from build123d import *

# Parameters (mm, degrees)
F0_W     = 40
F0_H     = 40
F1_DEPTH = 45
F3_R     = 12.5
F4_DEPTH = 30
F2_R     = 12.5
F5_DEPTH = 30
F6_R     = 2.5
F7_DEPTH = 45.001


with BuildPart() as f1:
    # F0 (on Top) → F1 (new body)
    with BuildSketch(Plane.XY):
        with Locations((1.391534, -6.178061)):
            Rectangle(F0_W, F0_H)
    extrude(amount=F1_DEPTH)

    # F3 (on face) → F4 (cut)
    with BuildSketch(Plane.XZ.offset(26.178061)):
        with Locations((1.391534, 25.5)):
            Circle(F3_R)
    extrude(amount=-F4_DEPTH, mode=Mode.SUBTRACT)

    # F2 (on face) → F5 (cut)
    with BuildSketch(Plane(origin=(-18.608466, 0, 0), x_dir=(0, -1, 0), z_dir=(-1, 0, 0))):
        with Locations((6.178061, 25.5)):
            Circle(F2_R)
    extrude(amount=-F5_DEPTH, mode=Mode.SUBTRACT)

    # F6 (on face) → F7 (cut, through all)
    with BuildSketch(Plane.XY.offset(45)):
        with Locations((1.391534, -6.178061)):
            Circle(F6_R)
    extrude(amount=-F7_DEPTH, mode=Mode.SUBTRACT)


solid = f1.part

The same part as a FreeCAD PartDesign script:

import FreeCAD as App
import Part
import Sketcher
from FreeCAD import Vector

doc = App.newDocument("Part")
body = doc.addObject("PartDesign::Body", "Body")

sketch1 = doc.addObject("Sketcher::SketchObject", "Sketch")
body.addObject(sketch1)
sketch1.AttachmentSupport = (doc.XY_Plane, [""])
sketch1.MapMode = "FlatFace"
sketch1.addGeometry([
    Part.LineSegment(Vector(-19, 14, 0), Vector(-19, -26, 0)),
    Part.LineSegment(Vector(-19, -26, 0), Vector(21, -26, 0)),
    Part.LineSegment(Vector(21, -26, 0), Vector(21, 14, 0)),
    Part.LineSegment(Vector(21, 14, 0), Vector(-19, 14, 0)),
], False)
sketch1.addConstraint([
    Sketcher.Constraint("Coincident", 0, 2, 1, 1),
    Sketcher.Constraint("Coincident", 1, 2, 2, 1),
    Sketcher.Constraint("Coincident", 2, 2, 3, 1),
    Sketcher.Constraint("Coincident", 3, 2, 0, 1),
    Sketcher.Constraint("Vertical", 0),
    Sketcher.Constraint("Horizontal", 1),
    Sketcher.Constraint("Vertical", 2),
    Sketcher.Constraint("Horizontal", 3),
    Sketcher.Constraint("Equal", 3, 0),
    Sketcher.Constraint("DistanceX", 1, 1, 1, 2, 40.0),
    Sketcher.Constraint("DistanceY", 0, 2, -1, 1, 26.178061),
    Sketcher.Constraint("DistanceX", 0, 2, -1, 1, 18.608466),
])
pad1 = doc.addObject("PartDesign::Pad", "Pad")
body.addObject(pad1)
pad1.Profile = sketch1
pad1.Length = 45

sketch2 = doc.addObject("Sketcher::SketchObject", "Sketch001")
body.addObject(sketch2)
sketch2.AttachmentSupport = (doc.XZ_Plane, [""])
sketch2.MapMode = "FlatFace"
sketch2.AttachmentOffset = App.Placement(Vector(0, 0, 26.178061), App.Rotation())
sketch2.addGeometry(Part.Circle(Vector(1, 26, 0), Vector(0, 0, 1), 12), False)
sketch2.addConstraint([
    Sketcher.Constraint("Diameter", 0, 25.0),
    Sketcher.Constraint("DistanceY", -1, 1, 0, 3, 25.5),
    Sketcher.Constraint("DistanceX", -1, 1, 0, 3, 1.391534),
])
pocket1 = doc.addObject("PartDesign::Pocket", "Pocket")
body.addObject(pocket1)
pocket1.Profile = sketch2
pocket1.Length = 30

sketch3 = doc.addObject("Sketcher::SketchObject", "Sketch002")
body.addObject(sketch3)
sketch3.AttachmentSupport = (doc.YZ_Plane, [""])
sketch3.MapMode = "FlatFace"
sketch3.AttachmentOffset = App.Placement(Vector(0, 0, -18.608466), App.Rotation())
sketch3.addGeometry(Part.Circle(Vector(-6, 26, 0), Vector(0, 0, 1), 12), False)
sketch3.addConstraint([
    Sketcher.Constraint("Diameter", 0, 25.0),
    Sketcher.Constraint("DistanceY", -1, 1, 0, 3, 25.5),
    Sketcher.Constraint("DistanceX", 0, 3, -1, 1, 6.178061),
])
pocket2 = doc.addObject("PartDesign::Pocket", "Pocket001")
body.addObject(pocket2)
pocket2.Profile = sketch3
pocket2.Length = 30
pocket2.Reversed = True

sketch4 = doc.addObject("Sketcher::SketchObject", "Sketch003")
body.addObject(sketch4)
sketch4.AttachmentSupport = (doc.XY_Plane, [""])
sketch4.MapMode = "FlatFace"
sketch4.AttachmentOffset = App.Placement(Vector(0, 0, 45), App.Rotation())
sketch4.addGeometry(Part.Circle(Vector(1.4, -6.2, 0), Vector(0, 0, 1), 2.5), False)
sketch4.addConstraint([
    Sketcher.Constraint("Diameter", 0, 5.0),
    Sketcher.Constraint("DistanceY", 0, 3, -1, 1, 6.178061),
    Sketcher.Constraint("DistanceX", -1, 1, 0, 3, 1.391534),
])
pocket3 = doc.addObject("PartDesign::Pocket", "Pocket002")
body.addObject(pocket3)
pocket3.Profile = sketch4
pocket3.Type = "ThroughAll"

doc.recompute()
